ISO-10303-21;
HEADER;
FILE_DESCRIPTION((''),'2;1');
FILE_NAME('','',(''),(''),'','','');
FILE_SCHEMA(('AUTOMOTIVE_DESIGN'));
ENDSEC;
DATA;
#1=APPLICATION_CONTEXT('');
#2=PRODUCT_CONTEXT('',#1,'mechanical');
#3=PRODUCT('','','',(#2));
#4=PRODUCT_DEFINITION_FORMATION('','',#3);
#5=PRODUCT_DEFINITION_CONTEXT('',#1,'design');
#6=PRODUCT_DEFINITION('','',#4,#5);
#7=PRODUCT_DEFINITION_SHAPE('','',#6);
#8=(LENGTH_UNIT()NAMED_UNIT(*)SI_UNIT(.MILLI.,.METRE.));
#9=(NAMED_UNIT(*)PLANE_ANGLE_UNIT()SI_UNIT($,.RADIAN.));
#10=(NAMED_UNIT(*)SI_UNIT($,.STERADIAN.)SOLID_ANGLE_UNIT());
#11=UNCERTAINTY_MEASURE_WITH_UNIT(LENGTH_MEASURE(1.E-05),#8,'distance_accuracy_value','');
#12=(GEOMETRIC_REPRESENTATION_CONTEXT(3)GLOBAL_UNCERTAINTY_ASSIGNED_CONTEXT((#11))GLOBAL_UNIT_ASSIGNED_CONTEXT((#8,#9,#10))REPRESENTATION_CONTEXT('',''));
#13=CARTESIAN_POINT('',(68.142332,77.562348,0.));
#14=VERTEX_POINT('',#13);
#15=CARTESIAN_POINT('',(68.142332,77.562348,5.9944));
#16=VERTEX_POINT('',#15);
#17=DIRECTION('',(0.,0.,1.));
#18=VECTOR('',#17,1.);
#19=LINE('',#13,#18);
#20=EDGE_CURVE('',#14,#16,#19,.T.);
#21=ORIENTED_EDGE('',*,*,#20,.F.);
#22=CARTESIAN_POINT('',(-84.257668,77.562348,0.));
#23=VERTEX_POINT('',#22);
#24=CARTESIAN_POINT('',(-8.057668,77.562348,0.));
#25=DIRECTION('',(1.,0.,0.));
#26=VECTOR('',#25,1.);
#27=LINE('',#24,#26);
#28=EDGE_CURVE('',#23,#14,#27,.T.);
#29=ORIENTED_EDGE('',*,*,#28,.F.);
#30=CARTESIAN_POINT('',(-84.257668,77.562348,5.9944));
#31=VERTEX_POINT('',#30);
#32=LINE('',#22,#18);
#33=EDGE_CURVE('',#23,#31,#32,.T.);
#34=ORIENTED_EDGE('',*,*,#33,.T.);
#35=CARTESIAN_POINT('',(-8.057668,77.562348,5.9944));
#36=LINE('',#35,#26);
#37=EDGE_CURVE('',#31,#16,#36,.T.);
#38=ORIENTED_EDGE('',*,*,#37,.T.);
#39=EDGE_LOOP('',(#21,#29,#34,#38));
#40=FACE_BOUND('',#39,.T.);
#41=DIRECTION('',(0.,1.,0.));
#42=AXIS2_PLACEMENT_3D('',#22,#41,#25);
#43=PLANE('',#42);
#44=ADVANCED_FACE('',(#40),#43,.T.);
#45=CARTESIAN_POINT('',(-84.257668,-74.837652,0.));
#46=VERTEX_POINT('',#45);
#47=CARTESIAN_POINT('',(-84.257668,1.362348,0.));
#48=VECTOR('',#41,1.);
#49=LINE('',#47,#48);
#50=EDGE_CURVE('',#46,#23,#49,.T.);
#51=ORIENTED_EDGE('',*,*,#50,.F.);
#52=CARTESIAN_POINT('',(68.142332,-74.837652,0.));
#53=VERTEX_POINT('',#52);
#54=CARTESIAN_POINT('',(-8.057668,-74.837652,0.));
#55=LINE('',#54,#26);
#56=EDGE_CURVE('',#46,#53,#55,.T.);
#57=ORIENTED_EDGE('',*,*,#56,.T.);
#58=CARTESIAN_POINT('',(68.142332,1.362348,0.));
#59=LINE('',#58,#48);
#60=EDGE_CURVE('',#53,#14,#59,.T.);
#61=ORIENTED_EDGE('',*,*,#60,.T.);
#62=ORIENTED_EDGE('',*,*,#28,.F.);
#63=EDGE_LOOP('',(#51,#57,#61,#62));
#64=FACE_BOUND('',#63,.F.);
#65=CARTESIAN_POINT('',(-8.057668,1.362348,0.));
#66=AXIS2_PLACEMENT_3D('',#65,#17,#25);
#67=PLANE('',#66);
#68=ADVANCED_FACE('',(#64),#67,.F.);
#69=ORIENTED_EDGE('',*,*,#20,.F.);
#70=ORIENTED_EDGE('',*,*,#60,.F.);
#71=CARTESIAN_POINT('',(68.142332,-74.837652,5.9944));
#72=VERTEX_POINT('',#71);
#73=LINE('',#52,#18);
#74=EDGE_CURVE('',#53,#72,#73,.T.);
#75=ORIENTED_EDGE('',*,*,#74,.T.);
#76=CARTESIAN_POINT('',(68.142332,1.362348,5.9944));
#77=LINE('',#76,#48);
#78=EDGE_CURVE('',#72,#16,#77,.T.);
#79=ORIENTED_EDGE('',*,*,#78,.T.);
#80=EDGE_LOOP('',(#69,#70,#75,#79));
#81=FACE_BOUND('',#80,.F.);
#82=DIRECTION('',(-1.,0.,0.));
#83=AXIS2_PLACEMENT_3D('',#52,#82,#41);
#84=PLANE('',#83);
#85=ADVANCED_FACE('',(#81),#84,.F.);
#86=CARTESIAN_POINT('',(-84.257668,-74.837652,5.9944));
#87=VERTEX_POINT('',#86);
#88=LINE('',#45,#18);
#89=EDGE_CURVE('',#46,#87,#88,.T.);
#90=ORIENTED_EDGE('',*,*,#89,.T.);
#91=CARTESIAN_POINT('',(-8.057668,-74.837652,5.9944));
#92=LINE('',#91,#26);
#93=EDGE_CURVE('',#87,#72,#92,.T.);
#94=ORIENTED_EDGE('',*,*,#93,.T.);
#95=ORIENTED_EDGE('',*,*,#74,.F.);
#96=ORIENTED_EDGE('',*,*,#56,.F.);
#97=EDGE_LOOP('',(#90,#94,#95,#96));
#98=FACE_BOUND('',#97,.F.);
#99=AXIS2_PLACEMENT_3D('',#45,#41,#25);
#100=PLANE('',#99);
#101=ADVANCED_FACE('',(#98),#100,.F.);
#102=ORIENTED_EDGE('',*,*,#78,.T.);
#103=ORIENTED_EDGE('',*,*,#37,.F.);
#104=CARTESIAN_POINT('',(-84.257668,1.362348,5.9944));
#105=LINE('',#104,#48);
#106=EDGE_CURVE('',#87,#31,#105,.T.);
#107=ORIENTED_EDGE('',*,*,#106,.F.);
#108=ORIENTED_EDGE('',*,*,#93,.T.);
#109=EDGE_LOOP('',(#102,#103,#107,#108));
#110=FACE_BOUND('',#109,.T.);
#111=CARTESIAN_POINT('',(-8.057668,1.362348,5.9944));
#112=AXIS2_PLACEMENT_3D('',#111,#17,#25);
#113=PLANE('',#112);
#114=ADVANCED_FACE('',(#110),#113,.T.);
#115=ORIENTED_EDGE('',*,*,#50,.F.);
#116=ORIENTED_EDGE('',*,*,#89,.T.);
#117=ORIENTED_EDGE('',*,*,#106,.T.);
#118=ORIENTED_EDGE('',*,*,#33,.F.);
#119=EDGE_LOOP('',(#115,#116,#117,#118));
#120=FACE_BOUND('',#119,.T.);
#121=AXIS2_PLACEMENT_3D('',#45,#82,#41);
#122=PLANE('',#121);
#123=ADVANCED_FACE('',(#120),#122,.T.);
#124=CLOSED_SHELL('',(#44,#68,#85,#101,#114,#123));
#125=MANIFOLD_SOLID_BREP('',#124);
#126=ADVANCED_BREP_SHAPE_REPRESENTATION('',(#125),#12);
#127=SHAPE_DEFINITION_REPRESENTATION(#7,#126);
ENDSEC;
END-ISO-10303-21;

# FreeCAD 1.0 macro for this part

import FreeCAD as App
import Part
import Sketcher
Q = App.Units.Quantity

doc = App.newDocument("Part")
body = doc.addObject("PartDesign::Body", "Body")

sketch1 = doc.addObject("Sketcher::SketchObject", "Sketch")
body.addObject(sketch1)
sketch1.AttachmentSupport = (doc.XY_Plane, [""])
sketch1.MapMode = "FlatFace"
sketch1.addGeometry([
    Part.LineSegment(App.Vector(-84, 78, 0), App.Vector(-84, -75, 0)),
    Part.LineSegment(App.Vector(-84, -75, 0), App.Vector(68, -75, 0)),
    Part.LineSegment(App.Vector(68, -75, 0), App.Vector(68, 78, 0)),
    Part.LineSegment(App.Vector(68, 78, 0), App.Vector(-84, 78, 0)),
], False)
sketch1.addConstraint([
    Sketcher.Constraint("Coincident", 0, 2, 1, 1),
    Sketcher.Constraint("Coincident", 1, 2, 2, 1),
    Sketcher.Constraint("Coincident", 2, 2, 3, 1),
    Sketcher.Constraint("Coincident", 3, 2, 0, 1),
    Sketcher.Constraint("Vertical", 0),
    Sketcher.Constraint("Horizontal", 1),
    Sketcher.Constraint("Vertical", 2),
    Sketcher.Constraint("Horizontal", 3),
    Sketcher.Constraint("Equal", 3, 0),
    Sketcher.Constraint("DistanceX", 1, 1, 1, 2, Q("6 in")),
    Sketcher.Constraint("DistanceX", -1, 1, 1, 2, 68.142332),
    Sketcher.Constraint("DistanceY", -1, 1, 2, 2, 77.562348),
])
pad1 = doc.addObject("PartDesign::Pad", "Pad")
body.addObject(pad1)
pad1.Profile = sketch1
pad1.Length = Q("0.236 in")

doc.recompute()
